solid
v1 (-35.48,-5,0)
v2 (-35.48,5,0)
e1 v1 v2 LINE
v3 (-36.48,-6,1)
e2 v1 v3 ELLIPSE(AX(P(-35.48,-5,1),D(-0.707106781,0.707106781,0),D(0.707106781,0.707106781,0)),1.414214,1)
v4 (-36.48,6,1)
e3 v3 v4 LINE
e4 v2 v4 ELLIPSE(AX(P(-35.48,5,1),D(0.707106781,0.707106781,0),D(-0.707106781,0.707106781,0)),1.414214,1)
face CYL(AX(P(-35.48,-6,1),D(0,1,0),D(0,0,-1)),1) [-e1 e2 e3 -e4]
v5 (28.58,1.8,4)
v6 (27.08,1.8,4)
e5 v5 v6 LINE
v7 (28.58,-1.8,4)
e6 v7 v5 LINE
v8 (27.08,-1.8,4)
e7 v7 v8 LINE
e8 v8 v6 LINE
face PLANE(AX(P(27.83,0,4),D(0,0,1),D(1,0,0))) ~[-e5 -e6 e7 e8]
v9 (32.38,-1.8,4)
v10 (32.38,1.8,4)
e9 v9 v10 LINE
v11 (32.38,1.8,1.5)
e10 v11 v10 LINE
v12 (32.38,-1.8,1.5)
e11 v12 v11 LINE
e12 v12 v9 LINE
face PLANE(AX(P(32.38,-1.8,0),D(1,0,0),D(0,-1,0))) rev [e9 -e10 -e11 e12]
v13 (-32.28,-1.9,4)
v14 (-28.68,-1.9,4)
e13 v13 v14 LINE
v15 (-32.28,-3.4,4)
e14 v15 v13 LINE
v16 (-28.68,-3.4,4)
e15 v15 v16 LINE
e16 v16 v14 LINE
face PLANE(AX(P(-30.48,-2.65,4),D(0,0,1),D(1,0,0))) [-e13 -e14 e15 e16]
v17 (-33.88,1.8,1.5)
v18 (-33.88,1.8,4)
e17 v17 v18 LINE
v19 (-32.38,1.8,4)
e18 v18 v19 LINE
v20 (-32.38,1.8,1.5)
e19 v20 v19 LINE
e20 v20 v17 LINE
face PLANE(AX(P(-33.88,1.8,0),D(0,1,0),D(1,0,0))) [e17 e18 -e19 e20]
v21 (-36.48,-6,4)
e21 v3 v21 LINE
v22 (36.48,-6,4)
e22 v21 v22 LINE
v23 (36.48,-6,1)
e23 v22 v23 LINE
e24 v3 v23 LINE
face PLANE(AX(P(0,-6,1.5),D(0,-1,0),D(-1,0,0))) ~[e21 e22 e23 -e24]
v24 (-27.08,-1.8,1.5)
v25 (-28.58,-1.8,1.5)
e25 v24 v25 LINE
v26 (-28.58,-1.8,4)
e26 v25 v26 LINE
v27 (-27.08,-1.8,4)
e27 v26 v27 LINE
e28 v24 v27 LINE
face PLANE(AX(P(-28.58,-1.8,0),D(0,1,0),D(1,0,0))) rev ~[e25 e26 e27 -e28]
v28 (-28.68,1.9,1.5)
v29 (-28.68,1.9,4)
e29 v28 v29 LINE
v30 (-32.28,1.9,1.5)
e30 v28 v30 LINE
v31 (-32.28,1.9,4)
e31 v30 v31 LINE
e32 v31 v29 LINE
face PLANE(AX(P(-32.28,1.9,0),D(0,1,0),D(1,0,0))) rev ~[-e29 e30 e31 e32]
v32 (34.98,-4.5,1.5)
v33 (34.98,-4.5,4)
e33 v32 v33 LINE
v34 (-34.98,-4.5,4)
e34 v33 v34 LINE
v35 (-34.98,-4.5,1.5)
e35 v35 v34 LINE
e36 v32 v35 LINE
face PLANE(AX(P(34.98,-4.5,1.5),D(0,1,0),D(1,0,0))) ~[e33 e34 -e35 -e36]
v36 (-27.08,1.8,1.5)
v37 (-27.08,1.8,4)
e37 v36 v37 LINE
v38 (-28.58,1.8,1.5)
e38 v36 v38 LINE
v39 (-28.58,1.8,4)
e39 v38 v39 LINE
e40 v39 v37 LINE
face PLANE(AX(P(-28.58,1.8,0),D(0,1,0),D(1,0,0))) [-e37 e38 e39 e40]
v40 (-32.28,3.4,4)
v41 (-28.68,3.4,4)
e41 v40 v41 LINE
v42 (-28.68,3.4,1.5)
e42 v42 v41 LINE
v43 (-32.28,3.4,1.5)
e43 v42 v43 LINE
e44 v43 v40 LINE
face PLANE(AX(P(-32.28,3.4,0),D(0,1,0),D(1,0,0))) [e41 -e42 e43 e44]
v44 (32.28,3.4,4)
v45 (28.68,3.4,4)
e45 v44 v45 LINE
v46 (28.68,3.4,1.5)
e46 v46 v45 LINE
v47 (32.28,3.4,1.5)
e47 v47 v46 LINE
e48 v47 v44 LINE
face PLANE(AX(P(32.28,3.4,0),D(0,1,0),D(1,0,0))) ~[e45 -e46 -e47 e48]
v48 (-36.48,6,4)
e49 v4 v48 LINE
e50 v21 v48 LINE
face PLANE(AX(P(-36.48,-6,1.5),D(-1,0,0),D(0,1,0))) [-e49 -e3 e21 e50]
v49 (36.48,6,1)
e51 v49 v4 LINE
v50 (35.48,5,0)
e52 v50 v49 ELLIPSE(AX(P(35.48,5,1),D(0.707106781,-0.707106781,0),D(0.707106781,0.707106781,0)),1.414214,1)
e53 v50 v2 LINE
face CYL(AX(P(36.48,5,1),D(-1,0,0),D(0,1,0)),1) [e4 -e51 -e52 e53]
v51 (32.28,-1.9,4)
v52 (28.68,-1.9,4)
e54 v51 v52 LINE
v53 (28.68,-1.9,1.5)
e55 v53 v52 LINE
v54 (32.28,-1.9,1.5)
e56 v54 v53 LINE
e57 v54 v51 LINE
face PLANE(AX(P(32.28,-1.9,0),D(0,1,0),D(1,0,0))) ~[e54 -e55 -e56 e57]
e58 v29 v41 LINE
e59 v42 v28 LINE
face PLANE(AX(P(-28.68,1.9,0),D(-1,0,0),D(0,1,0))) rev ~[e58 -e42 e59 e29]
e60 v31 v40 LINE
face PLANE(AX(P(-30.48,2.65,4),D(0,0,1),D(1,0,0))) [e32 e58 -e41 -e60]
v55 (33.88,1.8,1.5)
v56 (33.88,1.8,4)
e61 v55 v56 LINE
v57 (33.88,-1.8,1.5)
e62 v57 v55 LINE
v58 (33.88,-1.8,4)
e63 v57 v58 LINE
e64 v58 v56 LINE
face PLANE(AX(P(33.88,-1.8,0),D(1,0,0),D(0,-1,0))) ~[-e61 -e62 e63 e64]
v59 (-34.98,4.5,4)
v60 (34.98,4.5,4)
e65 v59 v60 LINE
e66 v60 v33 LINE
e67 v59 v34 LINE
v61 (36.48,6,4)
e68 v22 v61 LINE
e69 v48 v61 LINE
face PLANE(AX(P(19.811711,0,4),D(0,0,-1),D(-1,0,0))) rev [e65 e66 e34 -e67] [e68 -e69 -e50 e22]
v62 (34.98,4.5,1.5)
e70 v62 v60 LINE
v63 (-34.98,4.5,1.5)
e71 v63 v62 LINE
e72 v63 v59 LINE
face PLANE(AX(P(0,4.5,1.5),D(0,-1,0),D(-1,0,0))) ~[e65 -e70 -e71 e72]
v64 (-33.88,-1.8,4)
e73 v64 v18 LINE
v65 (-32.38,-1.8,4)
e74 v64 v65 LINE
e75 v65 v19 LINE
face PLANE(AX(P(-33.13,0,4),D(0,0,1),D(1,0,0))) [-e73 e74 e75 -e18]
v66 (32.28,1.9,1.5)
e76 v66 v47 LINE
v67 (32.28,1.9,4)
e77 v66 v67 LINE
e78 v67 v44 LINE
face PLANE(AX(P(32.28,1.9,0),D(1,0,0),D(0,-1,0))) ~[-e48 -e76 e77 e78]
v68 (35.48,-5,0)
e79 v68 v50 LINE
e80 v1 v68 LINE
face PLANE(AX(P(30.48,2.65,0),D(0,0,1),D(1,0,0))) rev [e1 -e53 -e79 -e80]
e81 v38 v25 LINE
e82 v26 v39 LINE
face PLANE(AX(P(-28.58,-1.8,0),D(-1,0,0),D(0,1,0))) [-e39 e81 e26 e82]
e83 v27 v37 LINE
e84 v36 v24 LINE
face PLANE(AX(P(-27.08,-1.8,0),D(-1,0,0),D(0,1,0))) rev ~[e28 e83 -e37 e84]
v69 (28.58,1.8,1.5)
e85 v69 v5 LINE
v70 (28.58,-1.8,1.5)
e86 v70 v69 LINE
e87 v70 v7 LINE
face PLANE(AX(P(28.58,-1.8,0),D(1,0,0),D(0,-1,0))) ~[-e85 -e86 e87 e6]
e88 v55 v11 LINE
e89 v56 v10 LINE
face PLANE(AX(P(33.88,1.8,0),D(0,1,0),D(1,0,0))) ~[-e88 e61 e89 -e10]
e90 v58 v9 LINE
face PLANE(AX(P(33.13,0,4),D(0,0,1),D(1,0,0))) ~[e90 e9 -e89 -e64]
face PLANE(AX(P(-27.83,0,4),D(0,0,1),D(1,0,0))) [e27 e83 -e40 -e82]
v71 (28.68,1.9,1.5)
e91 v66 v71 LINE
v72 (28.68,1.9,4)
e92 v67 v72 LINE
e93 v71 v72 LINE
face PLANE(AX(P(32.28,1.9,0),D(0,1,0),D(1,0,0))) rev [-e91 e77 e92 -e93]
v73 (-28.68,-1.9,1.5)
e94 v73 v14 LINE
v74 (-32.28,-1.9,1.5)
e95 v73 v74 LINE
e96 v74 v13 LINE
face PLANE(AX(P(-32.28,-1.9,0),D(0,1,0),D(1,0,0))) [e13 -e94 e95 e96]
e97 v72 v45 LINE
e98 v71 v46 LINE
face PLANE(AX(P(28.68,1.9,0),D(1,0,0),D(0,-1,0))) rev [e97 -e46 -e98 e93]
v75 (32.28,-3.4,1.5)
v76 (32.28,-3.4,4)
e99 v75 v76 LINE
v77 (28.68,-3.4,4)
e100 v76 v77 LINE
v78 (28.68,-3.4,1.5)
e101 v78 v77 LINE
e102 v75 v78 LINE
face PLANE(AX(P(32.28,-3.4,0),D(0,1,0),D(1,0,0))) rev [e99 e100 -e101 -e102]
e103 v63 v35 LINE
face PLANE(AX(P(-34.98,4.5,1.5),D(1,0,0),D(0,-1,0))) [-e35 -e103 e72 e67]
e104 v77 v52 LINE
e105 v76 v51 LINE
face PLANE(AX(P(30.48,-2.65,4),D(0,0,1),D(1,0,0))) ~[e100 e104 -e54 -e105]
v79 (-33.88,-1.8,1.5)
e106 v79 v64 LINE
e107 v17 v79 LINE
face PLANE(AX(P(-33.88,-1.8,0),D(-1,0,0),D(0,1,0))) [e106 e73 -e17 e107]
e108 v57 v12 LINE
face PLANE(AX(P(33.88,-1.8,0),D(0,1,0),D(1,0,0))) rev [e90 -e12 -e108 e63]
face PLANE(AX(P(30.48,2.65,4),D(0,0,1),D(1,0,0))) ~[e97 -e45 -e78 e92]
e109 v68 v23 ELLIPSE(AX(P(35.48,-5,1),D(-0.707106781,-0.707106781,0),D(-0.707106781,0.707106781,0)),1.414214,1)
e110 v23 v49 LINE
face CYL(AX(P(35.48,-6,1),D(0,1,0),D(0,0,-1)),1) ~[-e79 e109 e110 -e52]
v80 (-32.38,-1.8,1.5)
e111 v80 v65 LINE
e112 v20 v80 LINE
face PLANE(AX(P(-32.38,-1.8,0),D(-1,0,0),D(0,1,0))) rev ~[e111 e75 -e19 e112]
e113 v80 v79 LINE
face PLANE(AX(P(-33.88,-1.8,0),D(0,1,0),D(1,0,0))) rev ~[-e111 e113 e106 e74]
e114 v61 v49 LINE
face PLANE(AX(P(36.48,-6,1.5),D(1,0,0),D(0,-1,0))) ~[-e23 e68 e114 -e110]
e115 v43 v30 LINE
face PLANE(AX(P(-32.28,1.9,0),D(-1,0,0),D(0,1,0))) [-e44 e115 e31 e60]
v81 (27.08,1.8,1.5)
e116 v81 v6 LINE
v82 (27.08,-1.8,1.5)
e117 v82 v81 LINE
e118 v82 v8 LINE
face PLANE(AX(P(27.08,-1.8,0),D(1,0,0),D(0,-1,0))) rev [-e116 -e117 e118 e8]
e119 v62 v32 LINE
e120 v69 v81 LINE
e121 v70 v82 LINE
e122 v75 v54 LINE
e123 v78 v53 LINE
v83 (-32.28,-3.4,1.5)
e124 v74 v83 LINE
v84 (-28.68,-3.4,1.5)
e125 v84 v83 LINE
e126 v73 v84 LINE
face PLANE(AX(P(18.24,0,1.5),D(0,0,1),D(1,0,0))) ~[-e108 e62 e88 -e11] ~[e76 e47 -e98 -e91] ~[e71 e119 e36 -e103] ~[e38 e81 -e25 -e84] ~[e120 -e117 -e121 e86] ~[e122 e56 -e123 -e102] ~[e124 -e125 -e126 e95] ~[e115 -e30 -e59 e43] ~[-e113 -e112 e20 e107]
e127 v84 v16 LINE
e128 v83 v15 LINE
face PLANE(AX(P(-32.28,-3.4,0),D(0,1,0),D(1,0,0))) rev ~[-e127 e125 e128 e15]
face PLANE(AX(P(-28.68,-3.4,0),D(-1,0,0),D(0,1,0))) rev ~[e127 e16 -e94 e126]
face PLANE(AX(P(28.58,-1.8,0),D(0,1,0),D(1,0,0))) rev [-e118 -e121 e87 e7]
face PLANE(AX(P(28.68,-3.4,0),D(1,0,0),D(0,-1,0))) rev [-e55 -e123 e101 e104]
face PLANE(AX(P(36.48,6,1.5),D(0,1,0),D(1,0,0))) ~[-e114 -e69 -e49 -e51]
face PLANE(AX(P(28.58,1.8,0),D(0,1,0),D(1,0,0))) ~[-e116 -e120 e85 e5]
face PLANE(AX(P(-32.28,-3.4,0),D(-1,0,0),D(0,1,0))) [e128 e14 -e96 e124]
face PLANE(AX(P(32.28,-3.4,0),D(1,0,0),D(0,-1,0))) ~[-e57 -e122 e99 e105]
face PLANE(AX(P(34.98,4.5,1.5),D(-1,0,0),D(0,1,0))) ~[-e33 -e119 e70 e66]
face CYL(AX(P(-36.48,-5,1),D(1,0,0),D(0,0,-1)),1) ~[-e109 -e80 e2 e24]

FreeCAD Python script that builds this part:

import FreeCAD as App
import Part
import Sketcher

V = App.Vector
Q = App.Units.Quantity


def edges_at(feature, points):
    """Names of the edges that pass closest to the given points."""
    edges = feature.Shape.Edges
    near = lambda p: min(range(len(edges)), key=lambda i: edges[i].distToShape(Part.Vertex(*p))[0])
    return sorted({f"Edge{near(p) + 1}" for p in points})

doc = App.newDocument("Part")
body = doc.addObject("PartDesign::Body", "Body")

# Sketch on XY plane
sketch1 = body.newObject("Sketcher::SketchObject", "Sketch")
sketch1.AttachmentSupport = (doc.getObject("XY_Plane"), [""])
sketch1.MapMode = "FlatFace"
sketch1.addGeometry([
    Part.LineSegment(V(-36.48, 6, 0), V(-36.48, -6, 0)),
    Part.LineSegment(V(-36.48, -6, 0), V(0, -6, 0)),
    Part.LineSegment(V(0, -6, 0), V(0, 6, 0)),
    Part.LineSegment(V(0, 6, 0), V(-36.48, 6, 0)),
], False)
sketch1.addConstraint([
    Sketcher.Constraint("Coincident", 0, 2, 1, 1),
    Sketcher.Constraint("Coincident", 1, 2, 2, 1),
    Sketcher.Constraint("Coincident", 2, 2, 3, 1),
    Sketcher.Constraint("Coincident", 3, 2, 0, 1),
    Sketcher.Constraint("Vertical", 0),
    Sketcher.Constraint("Horizontal", 1),
    Sketcher.Constraint("Vertical", 2),
    Sketcher.Constraint("Horizontal", 3),
    Sketcher.Constraint("Symmetric", 1, 2, 2, 2, -1, 1),
    Sketcher.Constraint("DistanceY", 0, 2, 0, 1, Q("12 mm")),
    Sketcher.Constraint("DistanceX", 1, 1, 1, 2, Q("36.48 mm")),
])
pad1 = body.newObject("PartDesign::Pad", "Pad")
pad1.Profile = sketch1
pad1.Length = 1.5

# Sketch on XY plane
sketch2 = body.newObject("Sketcher::SketchObject", "Sketch001")
sketch2.AttachmentSupport = (doc.getObject("XY_Plane"), [""])
sketch2.MapMode = "FlatFace"
sketch2.AttachmentOffset = App.Placement(V(0, 0, 1.5), App.Rotation())
sketch2.addGeometry([
    Part.LineSegment(V(0, 6, 0), V(-36.48, 6, 0)),  # 0
    Part.LineSegment(V(-36.48, 6, 0), V(-36.48, -6, 0)),  # 1
    Part.LineSegment(V(-36.48, -6, 0), V(0, -6, 0)),  # 2
    Part.LineSegment(V(0, -6, 0), V(0, -4.5, 0)),  # 3
    Part.LineSegment(V(0, -4.5, 0), V(-34.98, -4.5, 0)),  # 4
    Part.LineSegment(V(-34.98, -4.5, 0), V(-34.98, 4.5, 0)),  # 5
    Part.LineSegment(V(-34.98, 4.5, 0), V(0, 4.5, 0)),  # 6
    Part.LineSegment(V(0, 4.5, 0), V(0, 6, 0)),  # 7
], False)
sketch2.addConstraint([
    Sketcher.Constraint("Coincident", 0, 2, 1, 1),
    Sketcher.Constraint("Coincident", 1, 2, 2, 1),
    Sketcher.Constraint("Coincident", 2, 2, 3, 1),
    Sketcher.Constraint("Coincident", 3, 2, 4, 1),
    Sketcher.Constraint("Coincident", 4, 2, 5, 1),
    Sketcher.Constraint("Coincident", 5, 2, 6, 1),
    Sketcher.Constraint("Coincident", 6, 2, 7, 1),
    Sketcher.Constraint("Coincident", 7, 2, 0, 1),
    Sketcher.Constraint("Horizontal", 0),
    Sketcher.Constraint("Vertical", 1),
    Sketcher.Constraint("Horizontal", 2),
    Sketcher.Constraint("Vertical", 3),
    Sketcher.Constraint("Horizontal", 4),
    Sketcher.Constraint("Vertical", 5),
    Sketcher.Constraint("Horizontal", 6),
    Sketcher.Constraint("Vertical", 7),
    Sketcher.Constraint("Symmetric", 3, 2, 6, 2, -1, 1),
    Sketcher.Constraint("Symmetric", 2, 2, 7, 2, -1),
    Sketcher.Constraint("DistanceY", 1, 2, 1, 1, Q("12 mm")),
    Sketcher.Constraint("DistanceY", 5, 1, 5, 2, Q("9 mm")),
    Sketcher.Constraint("DistanceX", 0, 2, 0, 1, Q("36.48 mm")),
    Sketcher.Constraint("DistanceX", 4, 2, 4, 1, Q("34.98 mm")),
])
pad2 = body.newObject("PartDesign::Pad", "Pad001")
pad2.Profile = sketch2
pad2.Length = 2.5

# Sketch on XY plane
sketch3 = body.newObject("Sketcher::SketchObject", "Sketch002")
sketch3.AttachmentSupport = (doc.getObject("XY_Plane"), [""])
sketch3.MapMode = "FlatFace"
sketch3.addGeometry([
    Part.LineSegment(V(-32.28, 3.4, 0), V(-32.28, 1.9, 0)),  # 0
    Part.LineSegment(V(-32.28, 1.9, 0), V(-28.68, 1.9, 0)),  # 1
    Part.LineSegment(V(-28.68, 1.9, 0), V(-28.68, 3.4, 0)),  # 2
    Part.LineSegment(V(-28.68, 3.4, 0), V(-32.28, 3.4, 0)),  # 3
    Part.LineSegment(V(-32.28, -1.9, 0), V(-32.28, -3.4, 0)),  # 4
    Part.LineSegment(V(-32.28, -3.4, 0), V(-28.68, -3.4, 0)),  # 5
    Part.LineSegment(V(-28.68, -3.4, 0), V(-28.68, -1.9, 0)),  # 6
    Part.LineSegment(V(-28.68, -1.9, 0), V(-32.28, -1.9, 0)),  # 7
    Part.LineSegment(V(-33.88, 1.8, 0), V(-33.88, -1.8, 0)),  # 8
    Part.LineSegment(V(-33.88, -1.8, 0), V(-32.38, -1.8, 0)),  # 9
    Part.LineSegment(V(-32.38, -1.8, 0), V(-32.38, 1.8, 0)),  # 10
    Part.LineSegment(V(-32.38, 1.8, 0), V(-33.88, 1.8, 0)),  # 11
    Part.LineSegment(V(-28.58, 1.8, 0), V(-28.58, -1.8, 0)),  # 12
    Part.LineSegment(V(-28.58, -1.8, 0), V(-27.08, -1.8, 0)),  # 13
    Part.LineSegment(V(-27.08, -1.8, 0), V(-27.08, 1.8, 0)),  # 14
    Part.LineSegment(V(-27.08, 1.8, 0), V(-28.58, 1.8, 0)),  # 15
], False)
sketch3.addConstraint([
    Sketcher.Constraint("Coincident", 0, 2, 1, 1),
    Sketcher.Constraint("Coincident", 1, 2, 2, 1),
    Sketcher.Constraint("Coincident", 2, 2, 3, 1),
    Sketcher.Constraint("Coincident", 3, 2, 0, 1),
    Sketcher.Constraint("Coincident", 4, 2, 5, 1),
    Sketcher.Constraint("Coincident", 5, 2, 6, 1),
    Sketcher.Constraint("Coincident", 6, 2, 7, 1),
    Sketcher.Constraint("Coincident", 7, 2, 4, 1),
    Sketcher.Constraint("Coincident", 8, 2, 9, 1),
    Sketcher.Constraint("Coincident", 9, 2, 10, 1),
    Sketcher.Constraint("Coincident", 10, 2, 11, 1),
    Sketcher.Constraint("Coincident", 11, 2, 8, 1),
    Sketcher.Constraint("Coincident", 12, 2, 13, 1),
    Sketcher.Constraint("Coincident", 13, 2, 14, 1),
    Sketcher.Constraint("Coincident", 14, 2, 15, 1),
    Sketcher.Constraint("Coincident", 15, 2, 12, 1),
    Sketcher.Constraint("Vertical", 0),
    Sketcher.Constraint("Horizontal", 1),
    Sketcher.Constraint("Vertical", 2),
    Sketcher.Constraint("Horizontal", 3),
    Sketcher.Constraint("Vertical", 4),
    Sketcher.Constraint("Horizontal", 5),
    Sketcher.Constraint("Vertical", 6),
    Sketcher.Constraint("Horizontal", 7),
    Sketcher.Constraint("Vertical", 8),
    Sketcher.Constraint("Horizontal", 9),
    Sketcher.Constraint("Vertical", 10),
    Sketcher.Constraint("Horizontal", 11),
    Sketcher.Constraint("Vertical", 12),
    Sketcher.Constraint("Horizontal", 13),
    Sketcher.Constraint("Vertical", 14),
    Sketcher.Constraint("Horizontal", 15),
    Sketcher.Constraint("Symmetric", 3, 2, 4, 2, -1),
    Sketcher.Constraint("Symmetric", 1, 2, 6, 2, -1),
    Sketcher.Constraint("Horizontal", 9, 2, 12, 2),
    Sketcher.Constraint("Horizontal", 11, 2, 14, 2),
    Sketcher.Constraint("Equal", 11, 13),
    Sketcher.Constraint("Equal", 15, 0),
    Sketcher.Constraint("Equal", 7, 8),
    Sketcher.Constraint("DistanceX", 1, 1, 1, 2, Q("3.6 mm")),
    Sketcher.Constraint("DistanceX", 9, 1, 9, 2, Q("1.5 mm")),
    Sketcher.Constraint("DistanceY", -1, 1, 0, 2, Q("1.9 mm")),
    Sketcher.Constraint("DistanceY", 8, 2, -1, 1, Q("1.8 mm")),
    Sketcher.Constraint("DistanceX", 8, 2, 7, 2, Q("1.6 mm")),
    Sketcher.Constraint("DistanceX", 6, 2, 12, 2, Q("0.1 mm")),
    Sketcher.Constraint("DistanceX", 0, 2, -1, 1, Q("32.28 mm")),
])
pad3 = body.newObject("PartDesign::Pad", "Pad002")
pad3.Profile = sketch3
pad3.Length = 4
doc.recompute()

mirrored = body.newObject("PartDesign::Mirrored", "Mirrored")
mirrored.Originals = [pad1]
mirrored.MirrorPlane = (doc.getObject("YZ_Plane"), [""])
body.Tip = mirrored
doc.recompute()

mirrored2 = body.newObject("PartDesign::Mirrored", "Mirrored001")
mirrored2.Originals = [pad3]
mirrored2.MirrorPlane = (doc.getObject("YZ_Plane"), [""])
body.Tip = mirrored2
doc.recompute()

mirrored3 = body.newObject("PartDesign::Mirrored", "Mirrored002")
mirrored3.Originals = [pad2]
mirrored3.MirrorPlane = (doc.getObject("YZ_Plane"), [""])
body.Tip = mirrored3
doc.recompute()

fillet = body.newObject("PartDesign::Fillet", "Fillet")
fillet.Base = (mirrored3, edges_at(mirrored3, [
    (36.48, 0, 0),
    (0, -6, 0),
    (-36.48, 0, 0),
    (0, 6, 0),
]))
fillet.Radius = 1

doc.recompute()
